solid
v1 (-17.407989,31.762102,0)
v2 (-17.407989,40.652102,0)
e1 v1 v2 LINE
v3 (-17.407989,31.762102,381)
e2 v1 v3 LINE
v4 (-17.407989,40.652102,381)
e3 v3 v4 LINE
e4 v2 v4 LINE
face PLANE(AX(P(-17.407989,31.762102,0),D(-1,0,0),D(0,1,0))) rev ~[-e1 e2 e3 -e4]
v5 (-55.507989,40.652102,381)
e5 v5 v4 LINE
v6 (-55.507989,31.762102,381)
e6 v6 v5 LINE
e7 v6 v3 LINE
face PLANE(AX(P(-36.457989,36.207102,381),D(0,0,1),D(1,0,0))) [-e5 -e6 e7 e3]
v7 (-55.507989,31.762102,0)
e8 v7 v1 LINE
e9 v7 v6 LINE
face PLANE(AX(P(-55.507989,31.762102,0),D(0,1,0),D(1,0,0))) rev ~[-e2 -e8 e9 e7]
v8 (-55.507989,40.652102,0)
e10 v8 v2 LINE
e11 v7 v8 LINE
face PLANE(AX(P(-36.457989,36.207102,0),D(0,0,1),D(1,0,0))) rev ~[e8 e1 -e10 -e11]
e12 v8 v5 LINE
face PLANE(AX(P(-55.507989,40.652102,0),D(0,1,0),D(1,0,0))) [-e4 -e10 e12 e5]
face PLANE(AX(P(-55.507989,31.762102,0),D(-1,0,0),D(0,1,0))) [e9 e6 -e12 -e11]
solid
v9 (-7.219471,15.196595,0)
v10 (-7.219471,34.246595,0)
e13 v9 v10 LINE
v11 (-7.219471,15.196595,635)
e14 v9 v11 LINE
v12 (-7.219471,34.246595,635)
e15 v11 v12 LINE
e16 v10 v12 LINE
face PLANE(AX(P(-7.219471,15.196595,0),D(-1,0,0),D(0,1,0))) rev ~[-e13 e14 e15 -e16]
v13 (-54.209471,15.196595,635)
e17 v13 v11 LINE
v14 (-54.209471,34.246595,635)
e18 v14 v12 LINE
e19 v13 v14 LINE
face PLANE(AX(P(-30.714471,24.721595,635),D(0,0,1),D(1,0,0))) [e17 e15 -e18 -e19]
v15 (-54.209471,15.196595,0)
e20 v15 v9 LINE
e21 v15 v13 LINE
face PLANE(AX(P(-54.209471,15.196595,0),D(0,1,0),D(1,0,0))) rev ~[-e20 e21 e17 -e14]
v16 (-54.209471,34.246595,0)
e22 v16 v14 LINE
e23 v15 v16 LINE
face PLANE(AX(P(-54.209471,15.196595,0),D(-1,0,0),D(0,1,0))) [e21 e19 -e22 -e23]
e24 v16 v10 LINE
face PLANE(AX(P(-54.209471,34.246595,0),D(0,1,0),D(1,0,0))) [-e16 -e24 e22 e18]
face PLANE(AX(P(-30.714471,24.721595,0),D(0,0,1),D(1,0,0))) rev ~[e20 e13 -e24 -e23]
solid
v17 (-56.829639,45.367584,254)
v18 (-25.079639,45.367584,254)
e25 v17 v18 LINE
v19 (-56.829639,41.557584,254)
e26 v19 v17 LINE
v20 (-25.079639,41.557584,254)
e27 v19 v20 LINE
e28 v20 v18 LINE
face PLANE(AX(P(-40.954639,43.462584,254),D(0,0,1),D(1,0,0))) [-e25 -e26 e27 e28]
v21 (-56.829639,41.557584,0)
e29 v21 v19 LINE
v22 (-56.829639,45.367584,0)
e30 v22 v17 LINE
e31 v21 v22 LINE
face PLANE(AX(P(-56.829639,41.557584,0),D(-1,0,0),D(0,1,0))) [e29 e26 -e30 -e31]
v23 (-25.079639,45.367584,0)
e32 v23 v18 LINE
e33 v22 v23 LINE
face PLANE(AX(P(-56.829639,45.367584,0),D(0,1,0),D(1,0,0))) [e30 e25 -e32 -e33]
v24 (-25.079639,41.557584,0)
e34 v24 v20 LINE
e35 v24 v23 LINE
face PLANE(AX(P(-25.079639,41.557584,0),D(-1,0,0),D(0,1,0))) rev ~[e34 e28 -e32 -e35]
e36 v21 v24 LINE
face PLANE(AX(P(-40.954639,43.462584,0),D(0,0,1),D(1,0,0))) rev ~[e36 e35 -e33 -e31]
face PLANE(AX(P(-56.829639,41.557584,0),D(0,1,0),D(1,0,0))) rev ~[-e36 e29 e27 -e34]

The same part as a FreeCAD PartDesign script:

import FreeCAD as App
import Part
import Sketcher
Q = App.Units.Quantity


def add_polygon(sketch, points):
    """Adds a closed chain of lines whose ends are joined by coincident constraints."""
    first, n = sketch.GeometryCount, len(points)
    for a, b in zip(points, points[1:] + points[:1]):
        sketch.addGeometry(Part.LineSegment(App.Vector(*a, 0), App.Vector(*b, 0)), False)
    for i in range(n):
        sketch.addConstraint(Sketcher.Constraint("Coincident", first + i, 2, first + (i + 1) % n, 1))

doc = App.newDocument("Part")
params = doc.addObject("Spreadsheet::Sheet", "Params")
for row, (alias, value) in enumerate([
    ("sketch1_width", "1.25 in"),
    ("sketch1_height", "0.15 in"),
    ("pad1_length", "10 in"),
    ("sketch2_width", "1.5 in"),
    ("sketch2_height", "0.35 in"),
    ("pad2_length", "15 in"),
    ("sketch3_width", "1.85 in"),
    ("sketch3_height", "0.75 in"),
    ("pad3_length", "25 in"),
], start=1):
    params.set(f"A{row}", alias)
    params.set(f"B{row}", "=" + value)
    params.setAlias(f"B{row}", alias)

body = doc.addObject("PartDesign::Body", "Body")

# Sketch on XY plane
sketch1 = body.newObject("Sketcher::SketchObject", "Sketch")
sketch1.AttachmentSupport = (doc.getObject("XY_Plane"), [""])
sketch1.MapMode = "FlatFace"
add_polygon(sketch1, [(-56.8, 45.4), (-56.8, 41.6), (-25.1, 41.6), (-25.1, 45.4)])  # lines 0-3
sketch1.addConstraint([
    Sketcher.Constraint("Vertical", 0),
    Sketcher.Constraint("Horizontal", 1),
    Sketcher.Constraint("Vertical", 2),
    Sketcher.Constraint("Horizontal", 3),
    Sketcher.Constraint("DistanceX", 1, 1, 1, 2, Q("1.25 in")),
    Sketcher.Constraint("DistanceY", 0, 2, 0, 1, Q("0.15 in")),
    Sketcher.Constraint("DistanceX", 0, 2, -1, 1, Q("56.829639 mm")),
    Sketcher.Constraint("DistanceY", -1, 1, 0, 2, Q("41.557584 mm")),
])
sketch1.setExpression("Constraints[8]", "Params.sketch1_width")
sketch1.setExpression("Constraints[9]", "Params.sketch1_height")
pad1 = body.newObject("PartDesign::Pad", "Pad")
pad1.Profile = sketch1
pad1.setExpression("Length", "Params.pad1_length")
body2 = doc.addObject("PartDesign::Body", "Body001")

# Sketch on XY plane
sketch2 = body2.newObject("Sketcher::SketchObject", "Sketch001")
sketch2.AttachmentSupport = (doc.getObject("XY_Plane001"), [""])
sketch2.MapMode = "FlatFace"
add_polygon(sketch2, [(-56, 41), (-56, 32), (-17, 32), (-17, 41)])  # lines 0-3
sketch2.addConstraint([
    Sketcher.Constraint("Vertical", 0),
    Sketcher.Constraint("Horizontal", 1),
    Sketcher.Constraint("Vertical", 2),
    Sketcher.Constraint("Horizontal", 3),
    Sketcher.Constraint("DistanceX", 1, 1, 1, 2, Q("1.5 in")),
    Sketcher.Constraint("DistanceY", 0, 2, 0, 1, Q("0.35 in")),
    Sketcher.Constraint("DistanceY", -1, 1, 0, 2, Q("31.762102 mm")),
    Sketcher.Constraint("DistanceX", 0, 2, -1, 1, Q("55.507989 mm")),
])
sketch2.setExpression("Constraints[8]", "Params.sketch2_width")
sketch2.setExpression("Constraints[9]", "Params.sketch2_height")
pad2 = body2.newObject("PartDesign::Pad", "Pad001")
pad2.Profile = sketch2
pad2.setExpression("Length", "Params.pad2_length")
body3 = doc.addObject("PartDesign::Body", "Body002")

# Sketch on XY plane
sketch3 = body3.newObject("Sketcher::SketchObject", "Sketch002")
sketch3.AttachmentSupport = (doc.getObject("XY_Plane002"), [""])
sketch3.MapMode = "FlatFace"
add_polygon(sketch3, [(-54, 34), (-54, 15), (-7, 15), (-7, 34)])  # lines 0-3
sketch3.addConstraint([
    Sketcher.Constraint("Vertical", 0),
    Sketcher.Constraint("Horizontal", 1),
    Sketcher.Constraint("Vertical", 2),
    Sketcher.Constraint("Horizontal", 3),
    Sketcher.Constraint("DistanceX", 1, 1, 1, 2, Q("1.85 in")),
    Sketcher.Constraint("DistanceY", 0, 2, 0, 1, Q("0.75 in")),
    Sketcher.Constraint("DistanceX", 0, 2, -1, 1, Q("54.209471 mm")),
    Sketcher.Constraint("DistanceY", -1, 1, 0, 2, Q("15.196595 mm")),
])
sketch3.setExpression("Constraints[8]", "Params.sketch3_width")
sketch3.setExpression("Constraints[9]", "Params.sketch3_height")
pad3 = body3.newObject("PartDesign::Pad", "Pad002")
pad3.Profile = sketch3
pad3.setExpression("Length", "Params.pad3_length")

doc.recompute()
